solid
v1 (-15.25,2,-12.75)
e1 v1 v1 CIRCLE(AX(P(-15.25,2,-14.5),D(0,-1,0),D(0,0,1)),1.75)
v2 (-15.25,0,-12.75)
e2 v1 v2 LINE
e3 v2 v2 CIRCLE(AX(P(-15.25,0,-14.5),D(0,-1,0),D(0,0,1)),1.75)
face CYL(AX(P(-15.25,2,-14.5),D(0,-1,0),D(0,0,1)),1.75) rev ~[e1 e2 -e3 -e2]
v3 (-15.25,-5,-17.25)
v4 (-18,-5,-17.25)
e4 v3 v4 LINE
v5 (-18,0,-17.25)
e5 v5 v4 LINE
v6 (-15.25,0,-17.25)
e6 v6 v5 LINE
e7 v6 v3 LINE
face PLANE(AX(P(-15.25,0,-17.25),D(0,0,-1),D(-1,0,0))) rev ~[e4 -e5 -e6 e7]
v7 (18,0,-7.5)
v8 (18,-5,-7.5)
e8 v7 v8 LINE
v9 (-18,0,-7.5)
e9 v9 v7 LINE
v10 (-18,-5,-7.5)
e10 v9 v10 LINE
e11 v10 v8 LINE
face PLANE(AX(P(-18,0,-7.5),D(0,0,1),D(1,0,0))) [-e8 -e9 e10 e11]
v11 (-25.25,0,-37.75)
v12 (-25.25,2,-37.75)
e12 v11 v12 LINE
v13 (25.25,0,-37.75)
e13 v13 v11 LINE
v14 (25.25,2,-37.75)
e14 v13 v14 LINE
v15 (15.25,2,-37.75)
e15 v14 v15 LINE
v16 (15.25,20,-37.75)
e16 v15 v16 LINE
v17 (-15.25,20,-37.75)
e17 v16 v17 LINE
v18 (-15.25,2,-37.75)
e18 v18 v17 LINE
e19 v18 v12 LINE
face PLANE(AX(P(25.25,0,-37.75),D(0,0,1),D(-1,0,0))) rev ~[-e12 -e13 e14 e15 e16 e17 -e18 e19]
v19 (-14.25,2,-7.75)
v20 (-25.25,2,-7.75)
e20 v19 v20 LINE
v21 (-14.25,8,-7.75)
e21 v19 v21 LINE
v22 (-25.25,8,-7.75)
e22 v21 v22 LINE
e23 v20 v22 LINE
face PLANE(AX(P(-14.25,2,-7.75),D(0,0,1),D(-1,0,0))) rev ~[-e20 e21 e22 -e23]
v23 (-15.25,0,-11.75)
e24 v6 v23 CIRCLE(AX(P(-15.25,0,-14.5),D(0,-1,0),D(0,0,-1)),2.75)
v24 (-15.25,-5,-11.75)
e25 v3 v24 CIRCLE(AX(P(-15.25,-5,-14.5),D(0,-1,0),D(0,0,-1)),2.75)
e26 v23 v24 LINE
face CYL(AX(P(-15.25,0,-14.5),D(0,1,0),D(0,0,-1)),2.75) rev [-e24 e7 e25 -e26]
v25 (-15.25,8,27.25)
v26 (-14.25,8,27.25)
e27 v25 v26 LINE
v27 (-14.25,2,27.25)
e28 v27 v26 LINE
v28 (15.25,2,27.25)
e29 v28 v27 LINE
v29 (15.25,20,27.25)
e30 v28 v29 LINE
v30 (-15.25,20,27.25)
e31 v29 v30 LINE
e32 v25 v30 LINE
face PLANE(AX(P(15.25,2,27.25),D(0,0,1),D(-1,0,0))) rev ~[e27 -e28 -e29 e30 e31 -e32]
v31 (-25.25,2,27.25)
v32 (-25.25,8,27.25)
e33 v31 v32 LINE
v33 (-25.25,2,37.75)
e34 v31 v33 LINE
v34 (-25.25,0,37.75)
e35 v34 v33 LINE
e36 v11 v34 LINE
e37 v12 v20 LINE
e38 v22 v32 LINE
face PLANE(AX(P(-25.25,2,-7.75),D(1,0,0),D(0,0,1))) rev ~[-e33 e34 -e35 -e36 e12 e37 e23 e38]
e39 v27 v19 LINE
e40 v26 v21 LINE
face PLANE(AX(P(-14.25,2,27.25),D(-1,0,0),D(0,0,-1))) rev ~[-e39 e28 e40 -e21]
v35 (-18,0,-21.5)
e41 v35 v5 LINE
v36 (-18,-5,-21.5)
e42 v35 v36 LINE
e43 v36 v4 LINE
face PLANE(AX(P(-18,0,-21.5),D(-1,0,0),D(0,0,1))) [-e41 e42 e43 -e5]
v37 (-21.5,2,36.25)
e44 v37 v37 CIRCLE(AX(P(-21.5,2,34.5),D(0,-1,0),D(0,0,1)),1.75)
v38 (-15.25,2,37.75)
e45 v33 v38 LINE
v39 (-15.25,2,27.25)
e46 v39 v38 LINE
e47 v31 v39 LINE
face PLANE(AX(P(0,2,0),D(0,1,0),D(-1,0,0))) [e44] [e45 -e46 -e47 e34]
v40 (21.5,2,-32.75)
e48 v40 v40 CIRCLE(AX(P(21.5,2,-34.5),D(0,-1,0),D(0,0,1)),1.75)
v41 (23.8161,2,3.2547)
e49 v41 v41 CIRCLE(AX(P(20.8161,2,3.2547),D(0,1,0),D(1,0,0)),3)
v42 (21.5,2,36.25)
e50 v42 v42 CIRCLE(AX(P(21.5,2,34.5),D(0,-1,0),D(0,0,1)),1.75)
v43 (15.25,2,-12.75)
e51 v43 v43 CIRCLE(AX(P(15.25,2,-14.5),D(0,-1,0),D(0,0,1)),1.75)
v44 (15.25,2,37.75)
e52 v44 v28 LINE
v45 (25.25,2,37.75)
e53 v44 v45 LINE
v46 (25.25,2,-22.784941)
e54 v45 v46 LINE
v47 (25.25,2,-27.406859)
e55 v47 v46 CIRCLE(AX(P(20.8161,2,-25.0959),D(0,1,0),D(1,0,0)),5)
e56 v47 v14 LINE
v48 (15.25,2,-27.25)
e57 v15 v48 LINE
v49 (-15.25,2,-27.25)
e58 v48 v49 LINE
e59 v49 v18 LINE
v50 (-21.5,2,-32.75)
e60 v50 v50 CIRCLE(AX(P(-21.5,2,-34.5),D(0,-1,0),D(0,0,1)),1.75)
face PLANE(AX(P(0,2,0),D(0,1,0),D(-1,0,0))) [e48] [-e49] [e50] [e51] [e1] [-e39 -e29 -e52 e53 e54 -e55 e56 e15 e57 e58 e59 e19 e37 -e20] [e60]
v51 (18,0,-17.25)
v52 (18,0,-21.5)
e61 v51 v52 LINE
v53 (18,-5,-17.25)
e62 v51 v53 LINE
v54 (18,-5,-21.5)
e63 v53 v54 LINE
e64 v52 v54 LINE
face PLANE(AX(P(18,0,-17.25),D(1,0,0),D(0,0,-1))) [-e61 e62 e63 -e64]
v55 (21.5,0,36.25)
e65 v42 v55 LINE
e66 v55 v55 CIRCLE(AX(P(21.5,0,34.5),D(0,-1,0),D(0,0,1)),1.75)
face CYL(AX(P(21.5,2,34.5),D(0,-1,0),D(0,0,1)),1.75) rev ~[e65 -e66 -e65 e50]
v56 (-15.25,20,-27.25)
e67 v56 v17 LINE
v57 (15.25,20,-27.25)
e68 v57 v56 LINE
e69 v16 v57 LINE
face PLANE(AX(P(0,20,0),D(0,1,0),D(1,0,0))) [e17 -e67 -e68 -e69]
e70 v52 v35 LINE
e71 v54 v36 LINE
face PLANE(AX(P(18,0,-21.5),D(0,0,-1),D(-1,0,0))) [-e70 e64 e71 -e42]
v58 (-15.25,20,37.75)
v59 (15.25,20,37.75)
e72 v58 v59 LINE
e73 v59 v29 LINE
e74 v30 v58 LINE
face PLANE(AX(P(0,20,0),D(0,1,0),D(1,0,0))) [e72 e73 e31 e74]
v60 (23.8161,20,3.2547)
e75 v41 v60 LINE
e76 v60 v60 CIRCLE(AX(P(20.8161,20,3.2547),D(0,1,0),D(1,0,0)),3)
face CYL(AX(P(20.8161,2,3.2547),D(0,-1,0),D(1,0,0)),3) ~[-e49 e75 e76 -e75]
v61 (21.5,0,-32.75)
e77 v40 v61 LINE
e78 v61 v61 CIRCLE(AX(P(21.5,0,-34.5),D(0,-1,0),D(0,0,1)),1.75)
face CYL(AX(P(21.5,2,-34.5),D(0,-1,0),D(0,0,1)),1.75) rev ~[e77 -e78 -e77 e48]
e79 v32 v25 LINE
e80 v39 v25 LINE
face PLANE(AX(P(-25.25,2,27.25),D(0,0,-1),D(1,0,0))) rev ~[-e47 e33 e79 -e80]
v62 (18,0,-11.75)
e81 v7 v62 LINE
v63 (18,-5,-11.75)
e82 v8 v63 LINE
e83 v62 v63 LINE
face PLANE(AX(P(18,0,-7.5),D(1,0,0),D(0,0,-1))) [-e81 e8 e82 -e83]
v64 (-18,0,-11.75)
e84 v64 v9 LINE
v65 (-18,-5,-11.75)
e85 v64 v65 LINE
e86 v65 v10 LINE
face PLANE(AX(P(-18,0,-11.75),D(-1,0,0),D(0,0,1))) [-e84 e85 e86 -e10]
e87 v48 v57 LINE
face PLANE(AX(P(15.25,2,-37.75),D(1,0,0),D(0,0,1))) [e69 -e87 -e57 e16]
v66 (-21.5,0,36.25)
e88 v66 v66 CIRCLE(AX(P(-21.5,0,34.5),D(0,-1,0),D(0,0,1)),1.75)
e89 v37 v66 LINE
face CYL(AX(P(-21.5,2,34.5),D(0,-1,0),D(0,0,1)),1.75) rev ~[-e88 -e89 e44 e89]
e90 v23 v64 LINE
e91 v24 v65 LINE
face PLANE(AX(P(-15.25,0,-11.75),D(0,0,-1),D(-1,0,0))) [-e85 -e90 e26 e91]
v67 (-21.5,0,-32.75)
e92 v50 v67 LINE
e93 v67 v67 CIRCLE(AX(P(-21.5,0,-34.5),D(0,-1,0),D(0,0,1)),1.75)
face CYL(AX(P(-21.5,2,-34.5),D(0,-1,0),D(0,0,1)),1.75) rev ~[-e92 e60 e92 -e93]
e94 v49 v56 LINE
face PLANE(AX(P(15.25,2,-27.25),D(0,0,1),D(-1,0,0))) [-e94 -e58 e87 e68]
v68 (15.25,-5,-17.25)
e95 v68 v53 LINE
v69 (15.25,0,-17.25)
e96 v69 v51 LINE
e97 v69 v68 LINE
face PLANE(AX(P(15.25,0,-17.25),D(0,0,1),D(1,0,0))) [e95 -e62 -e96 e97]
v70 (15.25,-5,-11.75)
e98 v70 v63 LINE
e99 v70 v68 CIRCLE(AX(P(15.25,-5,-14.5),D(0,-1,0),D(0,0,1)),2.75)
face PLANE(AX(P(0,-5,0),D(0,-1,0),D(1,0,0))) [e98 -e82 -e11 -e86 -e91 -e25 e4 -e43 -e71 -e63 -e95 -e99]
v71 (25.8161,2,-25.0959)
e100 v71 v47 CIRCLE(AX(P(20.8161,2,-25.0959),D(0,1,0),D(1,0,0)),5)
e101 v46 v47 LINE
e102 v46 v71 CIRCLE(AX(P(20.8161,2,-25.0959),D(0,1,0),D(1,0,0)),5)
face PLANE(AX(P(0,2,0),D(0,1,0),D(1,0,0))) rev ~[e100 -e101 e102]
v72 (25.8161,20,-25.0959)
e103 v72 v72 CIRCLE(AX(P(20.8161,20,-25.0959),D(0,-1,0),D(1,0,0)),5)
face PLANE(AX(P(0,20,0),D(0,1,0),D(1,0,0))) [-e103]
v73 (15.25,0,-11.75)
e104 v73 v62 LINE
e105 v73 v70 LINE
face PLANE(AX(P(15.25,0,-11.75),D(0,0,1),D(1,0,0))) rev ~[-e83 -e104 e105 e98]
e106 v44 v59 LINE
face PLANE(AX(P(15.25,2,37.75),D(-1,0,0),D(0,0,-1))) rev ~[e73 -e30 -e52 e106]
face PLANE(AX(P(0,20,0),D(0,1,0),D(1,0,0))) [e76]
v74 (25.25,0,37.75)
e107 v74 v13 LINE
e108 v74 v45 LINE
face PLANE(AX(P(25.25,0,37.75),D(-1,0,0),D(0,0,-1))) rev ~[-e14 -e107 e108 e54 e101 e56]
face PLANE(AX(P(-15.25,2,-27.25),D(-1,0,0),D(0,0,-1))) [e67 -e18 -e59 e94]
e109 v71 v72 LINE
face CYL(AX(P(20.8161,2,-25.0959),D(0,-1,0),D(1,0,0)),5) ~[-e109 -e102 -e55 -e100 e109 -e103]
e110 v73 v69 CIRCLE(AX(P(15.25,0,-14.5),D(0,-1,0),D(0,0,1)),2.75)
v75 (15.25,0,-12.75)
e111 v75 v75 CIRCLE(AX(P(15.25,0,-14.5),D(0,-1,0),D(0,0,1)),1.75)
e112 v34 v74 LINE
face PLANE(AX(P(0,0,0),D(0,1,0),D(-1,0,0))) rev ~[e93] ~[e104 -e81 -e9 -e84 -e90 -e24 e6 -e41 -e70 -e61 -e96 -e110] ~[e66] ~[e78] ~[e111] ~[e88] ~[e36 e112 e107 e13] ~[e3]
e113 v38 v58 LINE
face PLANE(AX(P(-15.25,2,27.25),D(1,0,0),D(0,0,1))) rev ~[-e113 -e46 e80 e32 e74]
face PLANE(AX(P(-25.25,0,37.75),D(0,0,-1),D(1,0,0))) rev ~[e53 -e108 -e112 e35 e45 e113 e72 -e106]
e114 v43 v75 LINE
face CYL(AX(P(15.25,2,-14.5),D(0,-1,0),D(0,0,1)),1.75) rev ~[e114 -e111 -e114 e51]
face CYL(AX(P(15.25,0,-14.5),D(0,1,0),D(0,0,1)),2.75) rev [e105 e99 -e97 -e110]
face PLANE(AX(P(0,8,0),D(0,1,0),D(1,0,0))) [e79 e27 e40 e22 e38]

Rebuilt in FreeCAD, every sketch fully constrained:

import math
import FreeCAD as App
import Part
import Sketcher

V = App.Vector


def add_polygon(sketch, points):
    """Adds a closed chain of lines whose ends are joined by coincident constraints."""
    first, n = sketch.GeometryCount, len(points)
    for a, b in zip(points, points[1:] + points[:1]):
        sketch.addGeometry(Part.LineSegment(App.Vector(*a, 0), App.Vector(*b, 0)), False)
    for i in range(n):
        sketch.addConstraint(Sketcher.Constraint("Coincident", first + i, 2, first + (i + 1) % n, 1))

doc = App.newDocument("Part")
body = doc.addObject("PartDesign::Body", "Body")

# Sketch on XZ plane
sketch1 = body.newObject("Sketcher::SketchObject", "Sketch")
sketch1.AttachmentSupport = (doc.getObject("XZ_Plane"), [""])
sketch1.MapMode = "FlatFace"
add_polygon(sketch1, [(25, 38), (25, -38), (-25, -38), (-25, 38)])  # lines 0-3
sketch1.addConstraint([
    Sketcher.Constraint("Vertical", 0),
    Sketcher.Constraint("Horizontal", 1),
    Sketcher.Constraint("Vertical", 2),
    Sketcher.Constraint("Horizontal", 3),
    Sketcher.Constraint("Symmetric", 0, 2, 2, 2, -1, 1),
    Sketcher.Constraint("DistanceX", 1, 2, 1, 1, 50.5),
    Sketcher.Constraint("DistanceY", 0, 2, 0, 1, 75.5),
])
pad1 = body.newObject("PartDesign::Pad", "Pad")
pad1.Profile = sketch1
pad1.Length = 2
pad1.Reversed = True

# Sketch on XZ plane
sketch2 = body.newObject("Sketcher::SketchObject", "Sketch001")
sketch2.AttachmentSupport = (doc.getObject("XZ_Plane"), [""])
sketch2.MapMode = "FlatFace"
sketch2.AttachmentOffset = App.Placement(V(0, 0, -2), App.Rotation())
sketch2.addGeometry([
    Part.Circle(V(-21.5, 34.5, 0), V(0, 0, 1), 1.8),  # 0
    Part.Circle(V(-21.5, -34.5, 0), V(0, 0, 1), 1.8),  # 1
    Part.Circle(V(21.5, -34.5, 0), V(0, 0, 1), 1.8),  # 2
    Part.Circle(V(21.5, 34.5, 0), V(0, 0, 1), 1.8),  # 3
    Part.Circle(V(-15.2, -14.5, 0), V(0, 0, 1), 1.8),  # 4
    Part.Circle(V(15.2, -14.5, 0), V(0, 0, 1), 1.8),  # 5
], False)
sketch2.addConstraint([
    Sketcher.Constraint("Equal", 0, 1),
    Sketcher.Constraint("Equal", 1, 2),
    Sketcher.Constraint("Equal", 2, 3),
    Sketcher.Constraint("Equal", 3, 4),
    Sketcher.Constraint("Equal", 4, 5),
    Sketcher.Constraint("Symmetric", 0, 3, 2, 3, -1, 1),
    Sketcher.Constraint("Symmetric", 1, 3, 3, 3, -1, 1),
    Sketcher.Constraint("Symmetric", 1, 3, 2, 3, -2),
    Sketcher.Constraint("Symmetric", 4, 3, 5, 3, -2),
    Sketcher.Constraint("Diameter", 0, 3.5),
    Sketcher.Constraint("DistanceY", 1, 3, 0, 3, 69.0),
    Sketcher.Constraint("DistanceX", 1, 3, 2, 3, 43.0),
    Sketcher.Constraint("DistanceY", 1, 3, 4, 3, 20.0),
    Sketcher.Constraint("DistanceX", 4, 3, 5, 3, 30.5),
])
doc.recompute()
hole = body.newObject("PartDesign::Hole", "Hole")
hole.Profile = sketch2
hole.ThreadType = "None"
hole.Diameter = 3.5
hole.DepthType = "ThroughAll"
hole.Reversed = True

# Sketch on XZ plane
sketch3 = body.newObject("Sketcher::SketchObject", "Sketch002")
sketch3.AttachmentSupport = (doc.getObject("XZ_Plane"), [""])
sketch3.MapMode = "FlatFace"
sketch3.AttachmentOffset = App.Placement(V(0, 0, -2), App.Rotation())
add_polygon(sketch3, [(15.2, -27.2), (15.2, -37.8), (-15.2, -37.8), (-15.2, -27.2)])  # lines 0-3
sketch3.addGeometry(Part.Circle(V(20.8, -25.1, 0), V(0, 0, 1), 5), False)  # 4
add_polygon(sketch3, [(-15.2, 37.8), (15.2, 37.8), (15.2, 27.2), (-15.2, 27.2)])  # lines 5-8
sketch3.addGeometry(Part.Circle(V(20.8, 3.3, 0), V(0, 0, 1), 3), False)  # 9
sketch3.addConstraint([
    Sketcher.Constraint("Vertical", 0),
    Sketcher.Constraint("Horizontal", 1),
    Sketcher.Constraint("Vertical", 2),
    Sketcher.Constraint("Horizontal", 3),
    Sketcher.Constraint("Horizontal", 5),
    Sketcher.Constraint("Vertical", 6),
    Sketcher.Constraint("Horizontal", 7),
    Sketcher.Constraint("Vertical", 8),
    Sketcher.Constraint("Symmetric", 1, 2, 5, 2, -1, 1),
    Sketcher.Constraint("Symmetric", 3, 2, 7, 2, -1, 1),
    Sketcher.Constraint("Vertical", 4, 3, 9, 3),
    Sketcher.Constraint("Vertical", 3, 2, 5, 2),
    Sketcher.Constraint("Diameter", 4, 10.0),
    Sketcher.Constraint("Diameter", 9, 6.0),
    Sketcher.Constraint("DistanceY", 0, 2, 0, 1, 10.5),
    Sketcher.Constraint("DistanceX", 1, 2, 1, 1, 30.5),
    Sketcher.Constraint("DistanceY", 3, 2, 5, 2, 65.0),
    Sketcher.Constraint("DistanceX", -1, 1, 4, 3, 20.816),
    Sketcher.Constraint("DistanceY", 4, 3, -1, 1, 25.096),
    Sketcher.Constraint("DistanceY", -1, 1, 9, 3, 3.2547),
])
pad2 = body.newObject("PartDesign::Pad", "Pad001")
pad2.Profile = sketch3
pad2.Length = 18
pad2.Reversed = True

# Sketch on XZ plane
sketch4 = body.newObject("Sketcher::SketchObject", "Sketch003")
sketch4.AttachmentSupport = (doc.getObject("XZ_Plane"), [""])
sketch4.MapMode = "FlatFace"
sketch4.AttachmentOffset = App.Placement(V(0, 0, -2), App.Rotation())
add_polygon(sketch4, [(-25, 27), (-14, 27), (-14, -8), (-25, -8)])  # lines 0-3
sketch4.addConstraint([
    Sketcher.Constraint("Horizontal", 0),
    Sketcher.Constraint("Vertical", 1),
    Sketcher.Constraint("Horizontal", 2),
    Sketcher.Constraint("Vertical", 3),
    Sketcher.Constraint("DistanceX", 0, 1, 0, 2, 11.0),
    Sketcher.Constraint("DistanceY", 1, 2, 1, 1, 35.0),
    Sketcher.Constraint("DistanceX", 0, 2, -1, 1, 14.25),
    Sketcher.Constraint("DistanceY", -1, 1, 0, 2, 27.25),
])
pad3 = body.newObject("PartDesign::Pad", "Pad002")
pad3.Profile = sketch4
pad3.Length = 6
pad3.Reversed = True

# Sketch on XZ plane
sketch5 = body.newObject("Sketcher::SketchObject", "Sketch004")
sketch5.AttachmentSupport = (doc.getObject("XZ_Plane"), [""])
sketch5.MapMode = "FlatFace"
sketch5.addGeometry([
    Part.LineSegment(V(18, -7.5, 0), V(-18, -7.5, 0)),  # 0
    Part.LineSegment(V(-18, -7.5, 0), V(-18, -11.8, 0)),  # 1
    Part.LineSegment(V(-18, -11.8, 0), V(-15.2, -11.8, 0)),  # 2
    Part.ArcOfCircle(Part.Circle(V(-15.2, -14.5, 0), V(0, 0, 1), 2.8), math.radians(-90), math.radians(90)),  # 3
    Part.LineSegment(V(-15.2, -17.2, 0), V(-18, -17.2, 0)),  # 4
    Part.LineSegment(V(-18, -17.2, 0), V(-18, -21.5, 0)),  # 5
    Part.LineSegment(V(-18, -21.5, 0), V(18, -21.5, 0)),  # 6
    Part.LineSegment(V(18, -21.5, 0), V(18, -17.2, 0)),  # 7
    Part.LineSegment(V(18, -17.2, 0), V(15.2, -17.2, 0)),  # 8
    Part.ArcOfCircle(Part.Circle(V(15.2, -14.5, 0), V(0, 0, 1), 2.8), math.radians(90), math.radians(270)),  # 9
    Part.LineSegment(V(15.2, -11.8, 0), V(18, -11.8, 0)),  # 10
    Part.LineSegment(V(18, -11.8, 0), V(18, -7.5, 0)),  # 11
], False)
sketch5.addConstraint([
    Sketcher.Constraint("Coincident", 0, 2, 1, 1),
    Sketcher.Constraint("Coincident", 1, 2, 2, 1),
    Sketcher.Constraint("Tangent", 2, 2, 3, 2),
    Sketcher.Constraint("Tangent", 3, 1, 4, 1),
    Sketcher.Constraint("Coincident", 4, 2, 5, 1),
    Sketcher.Constraint("Coincident", 5, 2, 6, 1),
    Sketcher.Constraint("Coincident", 6, 2, 7, 1),
    Sketcher.Constraint("Coincident", 7, 2, 8, 1),
    Sketcher.Constraint("Tangent", 8, 2, 9, 2),
    Sketcher.Constraint("Tangent", 9, 1, 10, 1),
    Sketcher.Constraint("Coincident", 10, 2, 11, 1),
    Sketcher.Constraint("Coincident", 11, 2, 0, 1),
    Sketcher.Constraint("Horizontal", 0),
    Sketcher.Constraint("Vertical", 1),
    Sketcher.Constraint("Horizontal", 2),
    Sketcher.Constraint("Horizontal", 4),
    Sketcher.Constraint("Vertical", 5),
    Sketcher.Constraint("Horizontal", 6),
    Sketcher.Constraint("Vertical", 7),
    Sketcher.Constraint("Horizontal", 8),
    Sketcher.Constraint("Horizontal", 10),
    Sketcher.Constraint("Vertical", 11),
    Sketcher.Constraint("Equal", 3, 9),
    Sketcher.Constraint("Symmetric", 3, 3, 9, 3, -2),
    Sketcher.Constraint("Vertical", 1, 2, 4, 2),
    Sketcher.Constraint("Vertical", 7, 2, 10, 2),
    Sketcher.Constraint("Equal", 4, 8),
    Sketcher.Constraint("Equal", 1, 5),
    Sketcher.Constraint("DistanceX", 0, 2, 0, 1, 36.0),
    Sketcher.Constraint("DistanceY", 3, 3, 0, 2, 7.0),
    Sketcher.Constraint("Radius", 3, 2.75),
    Sketcher.Constraint("DistanceX", 2, 1, 2, 2, 2.75),
    Sketcher.Constraint("DistanceY", 3, 3, -1, 1, 14.5),
])
pad4 = body.newObject("PartDesign::Pad", "Pad003")
pad4.Profile = sketch5
pad4.Length = 5

doc.recompute()
